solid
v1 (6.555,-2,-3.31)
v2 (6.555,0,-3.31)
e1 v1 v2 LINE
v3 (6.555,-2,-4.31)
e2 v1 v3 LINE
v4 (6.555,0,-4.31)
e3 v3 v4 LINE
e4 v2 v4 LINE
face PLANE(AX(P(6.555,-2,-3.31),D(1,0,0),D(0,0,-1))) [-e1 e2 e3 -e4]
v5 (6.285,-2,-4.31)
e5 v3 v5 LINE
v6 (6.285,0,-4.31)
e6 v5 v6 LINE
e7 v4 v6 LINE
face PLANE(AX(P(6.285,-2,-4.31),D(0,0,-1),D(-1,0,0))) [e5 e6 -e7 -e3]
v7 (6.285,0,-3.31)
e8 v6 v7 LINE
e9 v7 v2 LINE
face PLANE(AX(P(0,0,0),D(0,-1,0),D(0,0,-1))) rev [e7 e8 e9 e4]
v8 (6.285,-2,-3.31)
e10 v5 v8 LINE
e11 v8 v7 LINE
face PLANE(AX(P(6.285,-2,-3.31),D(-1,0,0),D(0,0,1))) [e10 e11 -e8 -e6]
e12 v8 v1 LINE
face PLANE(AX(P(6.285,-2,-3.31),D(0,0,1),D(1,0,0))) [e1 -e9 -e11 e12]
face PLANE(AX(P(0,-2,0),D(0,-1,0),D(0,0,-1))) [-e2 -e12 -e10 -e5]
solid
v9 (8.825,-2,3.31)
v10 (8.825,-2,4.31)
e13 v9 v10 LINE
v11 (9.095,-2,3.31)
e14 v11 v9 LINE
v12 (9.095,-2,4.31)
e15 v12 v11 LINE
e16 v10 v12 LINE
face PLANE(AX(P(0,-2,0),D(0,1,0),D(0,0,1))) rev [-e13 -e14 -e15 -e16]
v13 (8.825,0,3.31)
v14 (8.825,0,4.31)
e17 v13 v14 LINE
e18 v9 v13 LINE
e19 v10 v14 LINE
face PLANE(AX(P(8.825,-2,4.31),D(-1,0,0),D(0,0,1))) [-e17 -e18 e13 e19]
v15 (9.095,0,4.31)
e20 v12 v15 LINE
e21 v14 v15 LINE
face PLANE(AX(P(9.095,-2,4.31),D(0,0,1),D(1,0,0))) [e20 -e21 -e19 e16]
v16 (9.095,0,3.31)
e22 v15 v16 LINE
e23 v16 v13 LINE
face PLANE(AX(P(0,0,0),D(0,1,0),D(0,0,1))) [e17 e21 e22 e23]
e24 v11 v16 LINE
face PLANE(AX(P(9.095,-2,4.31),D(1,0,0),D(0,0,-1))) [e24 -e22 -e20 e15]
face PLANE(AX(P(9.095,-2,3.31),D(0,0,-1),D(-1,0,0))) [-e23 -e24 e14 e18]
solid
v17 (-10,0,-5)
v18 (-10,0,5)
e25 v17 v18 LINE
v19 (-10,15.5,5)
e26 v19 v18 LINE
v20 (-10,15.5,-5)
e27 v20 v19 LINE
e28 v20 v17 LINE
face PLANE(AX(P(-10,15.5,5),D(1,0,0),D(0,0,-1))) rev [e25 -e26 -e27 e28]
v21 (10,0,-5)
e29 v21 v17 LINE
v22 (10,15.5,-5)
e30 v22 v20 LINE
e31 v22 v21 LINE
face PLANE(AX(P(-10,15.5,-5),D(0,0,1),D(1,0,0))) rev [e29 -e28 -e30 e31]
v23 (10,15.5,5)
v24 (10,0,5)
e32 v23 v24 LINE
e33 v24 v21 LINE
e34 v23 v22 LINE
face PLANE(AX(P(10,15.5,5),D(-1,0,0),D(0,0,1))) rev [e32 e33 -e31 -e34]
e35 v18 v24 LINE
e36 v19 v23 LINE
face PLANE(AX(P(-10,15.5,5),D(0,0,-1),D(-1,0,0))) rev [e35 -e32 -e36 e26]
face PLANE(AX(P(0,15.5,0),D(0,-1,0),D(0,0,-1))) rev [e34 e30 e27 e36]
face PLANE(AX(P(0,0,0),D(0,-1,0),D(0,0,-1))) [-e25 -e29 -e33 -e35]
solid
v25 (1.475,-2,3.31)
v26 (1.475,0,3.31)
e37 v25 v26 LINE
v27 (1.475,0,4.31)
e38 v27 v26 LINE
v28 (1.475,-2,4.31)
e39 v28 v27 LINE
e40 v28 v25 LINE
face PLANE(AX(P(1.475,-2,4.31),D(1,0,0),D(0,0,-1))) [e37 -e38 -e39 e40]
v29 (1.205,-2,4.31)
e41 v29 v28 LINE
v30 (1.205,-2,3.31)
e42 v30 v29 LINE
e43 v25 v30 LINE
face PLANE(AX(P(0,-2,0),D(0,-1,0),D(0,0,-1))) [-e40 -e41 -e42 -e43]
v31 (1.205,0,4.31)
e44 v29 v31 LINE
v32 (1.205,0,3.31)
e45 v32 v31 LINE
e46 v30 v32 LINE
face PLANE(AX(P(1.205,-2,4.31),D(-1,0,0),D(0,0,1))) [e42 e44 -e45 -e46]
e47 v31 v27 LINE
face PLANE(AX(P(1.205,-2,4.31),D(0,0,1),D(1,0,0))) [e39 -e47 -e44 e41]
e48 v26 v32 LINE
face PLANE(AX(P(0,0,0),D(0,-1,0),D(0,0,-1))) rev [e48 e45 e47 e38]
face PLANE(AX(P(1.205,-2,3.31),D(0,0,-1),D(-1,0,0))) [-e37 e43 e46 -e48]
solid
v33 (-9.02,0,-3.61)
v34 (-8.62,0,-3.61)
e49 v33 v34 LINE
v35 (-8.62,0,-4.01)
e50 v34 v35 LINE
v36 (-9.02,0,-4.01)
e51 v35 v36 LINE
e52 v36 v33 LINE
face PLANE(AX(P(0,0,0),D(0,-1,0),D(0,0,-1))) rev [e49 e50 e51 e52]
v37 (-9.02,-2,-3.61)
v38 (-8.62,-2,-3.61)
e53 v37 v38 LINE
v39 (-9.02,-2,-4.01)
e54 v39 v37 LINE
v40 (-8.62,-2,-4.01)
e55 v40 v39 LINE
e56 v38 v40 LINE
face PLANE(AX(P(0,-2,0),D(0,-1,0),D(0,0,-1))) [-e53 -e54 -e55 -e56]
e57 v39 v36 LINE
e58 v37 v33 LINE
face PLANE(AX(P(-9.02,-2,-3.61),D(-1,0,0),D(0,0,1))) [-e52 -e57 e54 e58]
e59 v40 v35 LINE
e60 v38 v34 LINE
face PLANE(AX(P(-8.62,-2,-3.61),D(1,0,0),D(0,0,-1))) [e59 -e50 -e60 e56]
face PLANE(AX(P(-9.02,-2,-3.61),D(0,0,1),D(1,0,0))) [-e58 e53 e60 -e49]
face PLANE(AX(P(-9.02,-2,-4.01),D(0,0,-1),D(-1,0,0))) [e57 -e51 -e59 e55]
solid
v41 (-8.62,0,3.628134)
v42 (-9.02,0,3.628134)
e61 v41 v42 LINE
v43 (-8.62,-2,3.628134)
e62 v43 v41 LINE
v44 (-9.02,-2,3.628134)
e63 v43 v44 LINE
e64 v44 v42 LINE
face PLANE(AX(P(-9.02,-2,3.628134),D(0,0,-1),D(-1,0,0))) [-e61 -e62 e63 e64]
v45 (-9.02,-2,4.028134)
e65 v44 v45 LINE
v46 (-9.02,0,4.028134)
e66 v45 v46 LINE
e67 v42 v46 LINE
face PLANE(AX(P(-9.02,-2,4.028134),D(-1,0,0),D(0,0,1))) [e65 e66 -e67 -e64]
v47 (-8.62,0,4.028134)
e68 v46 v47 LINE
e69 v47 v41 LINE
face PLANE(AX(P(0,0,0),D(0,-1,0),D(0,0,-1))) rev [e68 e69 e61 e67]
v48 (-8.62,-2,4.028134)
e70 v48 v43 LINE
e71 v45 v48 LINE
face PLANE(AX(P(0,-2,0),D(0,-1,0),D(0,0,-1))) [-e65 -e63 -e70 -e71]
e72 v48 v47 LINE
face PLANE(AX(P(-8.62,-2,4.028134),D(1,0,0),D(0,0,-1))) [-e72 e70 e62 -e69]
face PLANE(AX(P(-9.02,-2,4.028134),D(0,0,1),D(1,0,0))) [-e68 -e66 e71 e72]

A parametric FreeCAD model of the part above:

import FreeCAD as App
import Part
import Sketcher

V = App.Vector


def add_polygon(sketch, points):
    """Adds a closed chain of lines whose ends are joined by coincident constraints."""
    first, n = sketch.GeometryCount, len(points)
    for a, b in zip(points, points[1:] + points[:1]):
        sketch.addGeometry(Part.LineSegment(App.Vector(*a, 0), App.Vector(*b, 0)), False)
    for i in range(n):
        sketch.addConstraint(Sketcher.Constraint("Coincident", first + i, 2, first + (i + 1) % n, 1))

doc = App.newDocument("Part")
params = doc.addObject("Spreadsheet::Sheet", "Params")
for row, (alias, value) in enumerate([
    ("sketch1_width", "20 mm"),
    ("sketch1_height", "10 mm"),
    ("pad1_length", "15.5 mm"),
    ("sketch2_width", "0.4 mm"),
    ("pad2_length", "2 mm"),
    ("sketch3_width", "0.4 mm"),
    ("pad3_length", "2 mm"),
    ("sketch4_height", "1 mm"),
    ("sketch4_width", "0.27 mm"),
    ("pad4_length", "2 mm"),
    ("sketch5_height", "1 mm"),
    ("sketch5_width", "0.27 mm"),
    ("pad5_length", "2 mm"),
    ("sketch6_height", "1 mm"),
    ("sketch6_width", "0.27 mm"),
    ("pad6_length", "2 mm"),
], start=1):
    params.set(f"A{row}", alias)
    params.set(f"B{row}", "=" + value)
    params.setAlias(f"B{row}", alias)

body = doc.addObject("PartDesign::Body", "Body")

# Sketch on XZ plane
sketch1 = body.newObject("Sketcher::SketchObject", "Sketch")
sketch1.AttachmentSupport = (doc.getObject("XZ_Plane"), [""])
sketch1.MapMode = "FlatFace"
add_polygon(sketch1, [(-10, -5), (-10, 5), (10, 5), (10, -5)])  # lines 0-3
sketch1.addConstraint(Sketcher.Constraint("Vertical", 0))
sketch1.addConstraint(Sketcher.Constraint("Horizontal", 1))
sketch1.addConstraint(Sketcher.Constraint("Vertical", 2))
sketch1.addConstraint(Sketcher.Constraint("Horizontal", 3))
sketch1.addConstraint(Sketcher.Constraint("Symmetric", 0, 2, 2, 2, -1, 1))
sketch1.addConstraint(Sketcher.Constraint("DistanceX", 1, 1, 1, 2, 20.0))
sketch1.addConstraint(Sketcher.Constraint("DistanceY", 0, 1, 0, 2, 10.0))
sketch1.setExpression("Constraints[9]", "Params.sketch1_width")
sketch1.setExpression("Constraints[10]", "Params.sketch1_height")
pad1 = body.newObject("PartDesign::Pad", "Pad")
pad1.Profile = sketch1
pad1.setExpression("Length", "Params.pad1_length")
pad1.Reversed = True
body2 = doc.addObject("PartDesign::Body", "Body001")

# Sketch on XZ plane
sketch2 = body2.newObject("Sketcher::SketchObject", "Sketch001")
sketch2.AttachmentSupport = (doc.getObject("XZ_Plane001"), [""])
sketch2.MapMode = "FlatFace"
add_polygon(sketch2, [(-9.02, -4.01), (-9.02, -3.61), (-8.62, -3.61), (-8.62, -4.01)])  # lines 0-3
sketch2.addConstraint(Sketcher.Constraint("Vertical", 0))
sketch2.addConstraint(Sketcher.Constraint("Horizontal", 1))
sketch2.addConstraint(Sketcher.Constraint("Vertical", 2))
sketch2.addConstraint(Sketcher.Constraint("Horizontal", 3))
sketch2.addConstraint(Sketcher.Constraint("Equal", 3, 0))
sketch2.addConstraint(Sketcher.Constraint("DistanceX", 1, 1, 1, 2, 0.4))
sketch2.addConstraint(Sketcher.Constraint("DistanceX", 0, 2, -1, 1, 9.02))
sketch2.addConstraint(Sketcher.Constraint("DistanceY", 0, 2, -1, 1, 3.61))
sketch2.setExpression("Constraints[9]", "Params.sketch2_width")
pad2 = body2.newObject("PartDesign::Pad", "Pad001")
pad2.Profile = sketch2
pad2.setExpression("Length", "Params.pad2_length")
body3 = doc.addObject("PartDesign::Body", "Body002")

# Sketch on XZ plane
sketch3 = body3.newObject("Sketcher::SketchObject", "Sketch002")
sketch3.AttachmentSupport = (doc.getObject("XZ_Plane002"), [""])
sketch3.MapMode = "FlatFace"
add_polygon(sketch3, [(-9.02, 3.63), (-9.02, 4.03), (-8.62, 4.03), (-8.62, 3.63)])  # lines 0-3
sketch3.addConstraint(Sketcher.Constraint("Vertical", 0))
sketch3.addConstraint(Sketcher.Constraint("Horizontal", 1))
sketch3.addConstraint(Sketcher.Constraint("Vertical", 2))
sketch3.addConstraint(Sketcher.Constraint("Horizontal", 3))
sketch3.addConstraint(Sketcher.Constraint("Equal", 3, 0))
sketch3.addConstraint(Sketcher.Constraint("DistanceX", 1, 1, 1, 2, 0.4))
sketch3.addConstraint(Sketcher.Constraint("DistanceX", 0, 2, -1, 1, 9.02))
sketch3.addConstraint(Sketcher.Constraint("DistanceY", -1, 1, 0, 2, 4.028134))
sketch3.setExpression("Constraints[9]", "Params.sketch3_width")
pad3 = body3.newObject("PartDesign::Pad", "Pad002")
pad3.Profile = sketch3
pad3.setExpression("Length", "Params.pad3_length")
body4 = doc.addObject("PartDesign::Body", "Body003")

# Sketch on XZ plane
sketch4 = body4.newObject("Sketcher::SketchObject", "Sketch003")
sketch4.AttachmentSupport = (doc.getObject("XZ_Plane003"), [""])
sketch4.MapMode = "FlatFace"
add_polygon(sketch4, [(1.21, 3.31), (1.21, 4.31), (1.48, 4.31), (1.48, 3.31)])  # lines 0-3
sketch4.addConstraint(Sketcher.Constraint("Vertical", 0))
sketch4.addConstraint(Sketcher.Constraint("Horizontal", 1))
sketch4.addConstraint(Sketcher.Constraint("Vertical", 2))
sketch4.addConstraint(Sketcher.Constraint("Horizontal", 3))
sketch4.addConstraint(Sketcher.Constraint("DistanceY", 0, 1, 0, 2, 1.0))
sketch4.addConstraint(Sketcher.Constraint("DistanceX", 1, 1, 1, 2, 0.27))
sketch4.addConstraint(Sketcher.Constraint("DistanceY", -1, 1, 0, 2, 4.31))
sketch4.addConstraint(Sketcher.Constraint("DistanceX", -1, 1, 0, 2, 1.205))
sketch4.setExpression("Constraints[8]", "Params.sketch4_height")
sketch4.setExpression("Constraints[9]", "Params.sketch4_width")
pad4 = body4.newObject("PartDesign::Pad", "Pad003")
pad4.Profile = sketch4
pad4.setExpression("Length", "Params.pad4_length")
body5 = doc.addObject("PartDesign::Body", "Body004")

# Sketch on XZ plane
sketch5 = body5.newObject("Sketcher::SketchObject", "Sketch004")
sketch5.AttachmentSupport = (doc.getObject("XZ_Plane004"), [""])
sketch5.MapMode = "FlatFace"
add_polygon(sketch5, [(8.82, 3.31), (8.82, 4.31), (9.1, 4.31), (9.1, 3.31)])  # lines 0-3
sketch5.addConstraint(Sketcher.Constraint("Vertical", 0))
sketch5.addConstraint(Sketcher.Constraint("Horizontal", 1))
sketch5.addConstraint(Sketcher.Constraint("Vertical", 2))
sketch5.addConstraint(Sketcher.Constraint("Horizontal", 3))
sketch5.addConstraint(Sketcher.Constraint("DistanceY", 0, 1, 0, 2, 1.0))
sketch5.addConstraint(Sketcher.Constraint("DistanceX", 1, 1, 1, 2, 0.27))
sketch5.addConstraint(Sketcher.Constraint("DistanceY", -1, 1, 0, 2, 4.31))
sketch5.addConstraint(Sketcher.Constraint("DistanceX", -1, 1, 0, 2, 8.825))
sketch5.setExpression("Constraints[8]", "Params.sketch5_height")
sketch5.setExpression("Constraints[9]", "Params.sketch5_width")
pad5 = body5.newObject("PartDesign::Pad", "Pad004")
pad5.Profile = sketch5
pad5.setExpression("Length", "Params.pad5_length")
body6 = doc.addObject("PartDesign::Body", "Body005")

# Sketch on XZ plane
sketch6 = body6.newObject("Sketcher::SketchObject", "Sketch005")
sketch6.AttachmentSupport = (doc.getObject("XZ_Plane005"), [""])
sketch6.MapMode = "FlatFace"
add_polygon(sketch6, [(6.29, -4.31), (6.29, -3.31), (6.55, -3.31), (6.55, -4.31)])  # lines 0-3
sketch6.addConstraint(Sketcher.Constraint("Vertical", 0))
sketch6.addConstraint(Sketcher.Constraint("Horizontal", 1))
sketch6.addConstraint(Sketcher.Constraint("Vertical", 2))
sketch6.addConstraint(Sketcher.Constraint("Horizontal", 3))
sketch6.addConstraint(Sketcher.Constraint("DistanceY", 0, 1, 0, 2, 1.0))
sketch6.addConstraint(Sketcher.Constraint("DistanceX", 1, 1, 1, 2, 0.27))
sketch6.addConstraint(Sketcher.Constraint("DistanceY", 0, 2, -1, 1, 3.31))
sketch6.addConstraint(Sketcher.Constraint("DistanceX", -1, 1, 0, 2, 6.285))
sketch6.setExpression("Constraints[8]", "Params.sketch6_height")
sketch6.setExpression("Constraints[9]", "Params.sketch6_width")
pad6 = body6.newObject("PartDesign::Pad", "Pad005")
pad6.Profile = sketch6
pad6.setExpression("Length", "Params.pad6_length")

doc.recompute()
